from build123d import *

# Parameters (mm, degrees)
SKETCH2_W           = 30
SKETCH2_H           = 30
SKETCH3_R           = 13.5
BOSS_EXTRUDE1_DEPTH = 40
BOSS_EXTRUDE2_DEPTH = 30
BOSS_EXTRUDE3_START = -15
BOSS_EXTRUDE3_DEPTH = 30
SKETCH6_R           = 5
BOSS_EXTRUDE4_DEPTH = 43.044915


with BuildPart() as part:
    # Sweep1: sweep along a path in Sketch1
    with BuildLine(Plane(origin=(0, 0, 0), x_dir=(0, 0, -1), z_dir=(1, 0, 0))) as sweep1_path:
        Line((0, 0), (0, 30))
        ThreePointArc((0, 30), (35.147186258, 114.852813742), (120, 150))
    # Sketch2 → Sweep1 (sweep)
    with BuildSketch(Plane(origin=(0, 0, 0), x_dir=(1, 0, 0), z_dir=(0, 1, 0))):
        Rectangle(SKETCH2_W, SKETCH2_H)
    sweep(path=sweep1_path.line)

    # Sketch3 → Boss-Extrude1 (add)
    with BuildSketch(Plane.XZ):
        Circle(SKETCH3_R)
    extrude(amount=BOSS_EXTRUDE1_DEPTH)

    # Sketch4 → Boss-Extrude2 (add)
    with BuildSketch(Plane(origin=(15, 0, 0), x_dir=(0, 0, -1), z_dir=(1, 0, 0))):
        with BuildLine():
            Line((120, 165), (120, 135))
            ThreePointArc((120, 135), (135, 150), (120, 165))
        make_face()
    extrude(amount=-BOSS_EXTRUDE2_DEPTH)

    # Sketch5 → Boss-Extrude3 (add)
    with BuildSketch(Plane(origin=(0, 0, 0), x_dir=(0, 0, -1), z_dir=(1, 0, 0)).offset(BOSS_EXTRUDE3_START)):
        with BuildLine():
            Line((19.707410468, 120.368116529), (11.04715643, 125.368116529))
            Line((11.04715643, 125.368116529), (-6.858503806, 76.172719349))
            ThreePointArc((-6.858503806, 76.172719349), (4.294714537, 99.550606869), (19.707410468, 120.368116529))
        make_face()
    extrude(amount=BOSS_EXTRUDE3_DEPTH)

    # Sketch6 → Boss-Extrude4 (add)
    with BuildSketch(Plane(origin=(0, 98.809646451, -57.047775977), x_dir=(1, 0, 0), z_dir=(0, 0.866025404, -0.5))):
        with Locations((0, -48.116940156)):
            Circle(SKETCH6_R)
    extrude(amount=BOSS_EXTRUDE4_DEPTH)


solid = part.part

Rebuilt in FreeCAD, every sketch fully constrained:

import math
import FreeCAD as App
import Part
import Sketcher

V = App.Vector
Q = App.Units.Quantity

doc = App.newDocument("Part")
body = doc.addObject("PartDesign::Body", "Body")

# Sketch on XZ plane
sketch1 = body.newObject("Sketcher::SketchObject", "Sketch")
sketch1.AttachmentSupport = (doc.getObject("XZ_Plane"), [""])
sketch1.MapMode = "FlatFace"
sketch1.addGeometry([
    Part.LineSegment(V(-15, -15, 0), V(-15, 15, 0)),
    Part.LineSegment(V(-15, 15, 0), V(15, 15, 0)),
    Part.LineSegment(V(15, 15, 0), V(15, -15, 0)),
    Part.LineSegment(V(15, -15, 0), V(-15, -15, 0)),
], False)
sketch1.addConstraint([
    Sketcher.Constraint("Coincident", 0, 2, 1, 1),
    Sketcher.Constraint("Coincident", 1, 2, 2, 1),
    Sketcher.Constraint("Coincident", 2, 2, 3, 1),
    Sketcher.Constraint("Coincident", 3, 2, 0, 1),
    Sketcher.Constraint("Vertical", 0),
    Sketcher.Constraint("Horizontal", 1),
    Sketcher.Constraint("Vertical", 2),
    Sketcher.Constraint("Horizontal", 3),
    Sketcher.Constraint("Symmetric", 0, 2, 2, 2, -1, 1),
    Sketcher.Constraint("Equal", 3, 0),
    Sketcher.Constraint("DistanceX", 1, 1, 1, 2, Q("30 mm")),
])

# Sketch on YZ plane
sketch2 = body.newObject("Sketcher::SketchObject", "Sketch001")
sketch2.AttachmentSupport = (doc.getObject("YZ_Plane"), [""])
sketch2.MapMode = "FlatFace"
sketch2.addGeometry([
    Part.LineSegment(V(0, 0, 0), V(30, 0, 0)),
    Part.ArcOfCircle(Part.Circle(V(30, -120, 0), V(0, 0, 1), 120), math.radians(0), math.radians(90)),
], False)
sketch2.addConstraint([
    Sketcher.Constraint("Tangent", 0, 2, 1, 2),
    Sketcher.Constraint("Horizontal", 0),
    Sketcher.Constraint("Coincident", 0, 1, -1, 1),
    Sketcher.Constraint("Radius", 1, Q("120 mm")),
    Sketcher.Constraint("DistanceX", 0, 1, 0, 2, Q("30 mm")),
    Sketcher.Constraint("DistanceY", 1, 1, -1, 1, Q("120 mm")),
])
doc.recompute()

additivepipe = body.newObject("PartDesign::AdditivePipe", "AdditivePipe")
additivepipe.Profile = sketch1
additivepipe.Spine = (sketch2, ["Edge1", "Edge2"])

# Sketch on XZ plane
sketch3 = body.newObject("Sketcher::SketchObject", "Sketch002")
sketch3.AttachmentSupport = (doc.getObject("XZ_Plane"), [""])
sketch3.MapMode = "FlatFace"
sketch3.addGeometry(Part.Circle(V(0, 0, 0), V(0, 0, 1), 14), False)
sketch3.addConstraint([
    Sketcher.Constraint("Coincident", 0, 3, -1, 1),
    Sketcher.Constraint("Diameter", 0, Q("27 mm")),
])
pad1 = body.newObject("PartDesign::Pad", "Pad")
pad1.Profile = sketch3
pad1.Length = 40

# Sketch on YZ plane
sketch4 = body.newObject("Sketcher::SketchObject", "Sketch003")
sketch4.AttachmentSupport = (doc.getObject("YZ_Plane"), [""])
sketch4.MapMode = "FlatFace"
sketch4.AttachmentOffset = App.Placement(V(0, 0, 15), App.Rotation())
sketch4.addGeometry([
    Part.LineSegment(V(165, -120, 0), V(135, -120, 0)),
    Part.ArcOfCircle(Part.Circle(V(150, -120, 0), V(0, 0, 1), 15), math.radians(180), math.radians(360)),
], False)
sketch4.addConstraint([
    Sketcher.Constraint("Coincident", 0, 1, 1, 2),
    Sketcher.Constraint("Coincident", 1, 1, 0, 2),
    Sketcher.Constraint("Horizontal", 0),
    Sketcher.Constraint("Horizontal", 1, 3, 0, 1),
    Sketcher.Constraint("Radius", 1, Q("15 mm")),
    Sketcher.Constraint("DistanceX", -1, 1, 1, 3, Q("150 mm")),
    Sketcher.Constraint("DistanceY", 1, 3, -1, 1, Q("120 mm")),
])
pad2 = body.newObject("PartDesign::Pad", "Pad001")
pad2.Profile = sketch4
pad2.Length = 30
pad2.Reversed = True

# Sketch on YZ plane
sketch5 = body.newObject("Sketcher::SketchObject", "Sketch004")
sketch5.AttachmentSupport = (doc.getObject("YZ_Plane"), [""])
sketch5.MapMode = "FlatFace"
sketch5.AttachmentOffset = App.Placement(V(0, 0, -15), App.Rotation())
sketch5.addGeometry([
    Part.LineSegment(V(120, -20, 0), V(125, -11, 0)),
    Part.LineSegment(V(125, -11, 0), V(76, 7, 0)),
    Part.ArcOfCircle(Part.Circle(V(30, -120, 0), V(0, 0, 1), 135), math.radians(48), math.radians(70)),
], False)
sketch5.addConstraint([
    Sketcher.Constraint("Coincident", 0, 2, 1, 1),
    Sketcher.Constraint("Tangent", 1, 2, 2, 2),
    Sketcher.Constraint("Coincident", 2, 1, 0, 1),
    Sketcher.Constraint("Radius", 2, Q("135 mm")),
    Sketcher.Constraint("Angle", 0, Q("60 deg")),
    Sketcher.Constraint("Angle", 1, Q("160 deg")),
    Sketcher.Constraint("Distance", 0, Q("10 mm")),
    Sketcher.Constraint("DistanceX", -1, 1, 2, 3, Q("30 mm")),
    Sketcher.Constraint("DistanceY", 2, 3, -1, 1, Q("120 mm")),
])
pad3 = body.newObject("PartDesign::Pad", "Pad002")
pad3.Profile = sketch5
pad3.Length = 30

# Sketch on an angled plane
sketch6 = body.newObject("Sketcher::SketchObject", "Sketch005")
sketch6.Placement = App.Placement(V(0, 98.809646, -57.047776), App.Rotation(V(1, 0, 0), V(0, -0.5, -0.866025404), V(0, 0.866025404, -0.5), "ZXY"))
sketch6.addGeometry(Part.Circle(V(0, -48, 0), V(0, 0, 1), 5), False)
sketch6.addConstraint([
    Sketcher.Constraint("PointOnObject", 0, 3, -2),
    Sketcher.Constraint("Diameter", 0, Q("10 mm")),
    Sketcher.Constraint("DistanceY", 0, 3, -1, 1, Q("48.11694 mm")),
])
pad4 = body.newObject("PartDesign::Pad", "Pad003")
pad4.Profile = sketch6
pad4.Length = 43.044915

doc.recompute()
